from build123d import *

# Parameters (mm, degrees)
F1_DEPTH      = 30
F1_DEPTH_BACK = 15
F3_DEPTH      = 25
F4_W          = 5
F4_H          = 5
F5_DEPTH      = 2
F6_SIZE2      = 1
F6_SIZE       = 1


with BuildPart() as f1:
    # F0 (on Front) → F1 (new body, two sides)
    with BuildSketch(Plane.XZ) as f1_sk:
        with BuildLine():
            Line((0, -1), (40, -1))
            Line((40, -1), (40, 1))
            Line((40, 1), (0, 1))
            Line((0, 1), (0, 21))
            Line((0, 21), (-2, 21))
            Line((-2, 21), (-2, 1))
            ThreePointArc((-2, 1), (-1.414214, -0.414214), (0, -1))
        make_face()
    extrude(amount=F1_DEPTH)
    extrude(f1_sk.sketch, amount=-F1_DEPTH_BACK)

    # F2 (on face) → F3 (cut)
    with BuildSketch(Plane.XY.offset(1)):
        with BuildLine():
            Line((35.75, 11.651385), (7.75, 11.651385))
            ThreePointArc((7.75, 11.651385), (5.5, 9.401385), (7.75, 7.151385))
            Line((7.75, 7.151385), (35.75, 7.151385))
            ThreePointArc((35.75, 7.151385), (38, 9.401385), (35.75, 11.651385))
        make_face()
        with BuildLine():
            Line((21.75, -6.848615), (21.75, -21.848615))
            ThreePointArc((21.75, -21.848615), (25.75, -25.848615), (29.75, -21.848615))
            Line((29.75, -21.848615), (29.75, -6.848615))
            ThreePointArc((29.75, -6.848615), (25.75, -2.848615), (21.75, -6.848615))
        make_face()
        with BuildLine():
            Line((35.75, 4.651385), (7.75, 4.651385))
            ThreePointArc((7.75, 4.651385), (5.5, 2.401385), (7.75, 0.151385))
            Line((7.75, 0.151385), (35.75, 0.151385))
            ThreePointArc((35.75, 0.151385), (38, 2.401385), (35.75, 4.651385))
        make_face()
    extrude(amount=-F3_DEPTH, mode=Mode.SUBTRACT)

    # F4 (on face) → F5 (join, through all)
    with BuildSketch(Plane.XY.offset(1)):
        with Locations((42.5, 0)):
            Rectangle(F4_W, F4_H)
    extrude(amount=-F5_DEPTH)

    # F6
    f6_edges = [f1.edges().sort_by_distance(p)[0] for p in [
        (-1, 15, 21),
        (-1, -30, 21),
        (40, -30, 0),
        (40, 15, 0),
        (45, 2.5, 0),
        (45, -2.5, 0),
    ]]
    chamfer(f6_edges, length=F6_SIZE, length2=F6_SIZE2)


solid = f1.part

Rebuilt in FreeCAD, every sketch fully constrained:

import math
import FreeCAD as App
import Part
import Sketcher
from FreeCAD import Vector
Q = App.Units.Quantity


def edges_at(feature, points):
    """Names of the edges that pass closest to the given points."""
    edges = feature.Shape.Edges
    near = lambda p: min(range(len(edges)), key=lambda i: edges[i].distToShape(Part.Vertex(*p))[0])
    return sorted({f"Edge{near(p) + 1}" for p in points})


def add_polygon(sketch, points):
    """Adds a closed chain of lines whose ends are joined by coincident constraints."""
    first, n = sketch.GeometryCount, len(points)
    for a, b in zip(points, points[1:] + points[:1]):
        sketch.addGeometry(Part.LineSegment(App.Vector(*a, 0), App.Vector(*b, 0)), False)
    for i in range(n):
        sketch.addConstraint(Sketcher.Constraint("Coincident", first + i, 2, first + (i + 1) % n, 1))

doc = App.newDocument("Part")
body = doc.addObject("PartDesign::Body", "Body")

# Sketch on XZ plane
sketch1 = body.newObject("Sketcher::SketchObject", "Sketch")
sketch1.AttachmentSupport = (doc.getObject("XZ_Plane"), [""])
sketch1.MapMode = "FlatFace"
sketch1.addGeometry([
    Part.LineSegment(Vector(0, -1, 0), Vector(40, -1, 0)),  # 0
    Part.LineSegment(Vector(40, -1, 0), Vector(40, 1, 0)),  # 1
    Part.LineSegment(Vector(40, 1, 0), Vector(0, 1, 0)),  # 2
    Part.LineSegment(Vector(0, 1, 0), Vector(0, 21, 0)),  # 3
    Part.LineSegment(Vector(0, 21, 0), Vector(-2, 21, 0)),  # 4
    Part.LineSegment(Vector(-2, 21, 0), Vector(-2, 1, 0)),  # 5
    Part.ArcOfCircle(Part.Circle(Vector(0, 1, 0), Vector(0, 0, 1), 2), math.radians(180), math.radians(270)),  # 6
], False)
sketch1.addConstraint([
    Sketcher.Constraint("Coincident", 0, 2, 1, 1),
    Sketcher.Constraint("Coincident", 1, 2, 2, 1),
    Sketcher.Constraint("Coincident", 2, 2, 3, 1),
    Sketcher.Constraint("Coincident", 3, 2, 4, 1),
    Sketcher.Constraint("Coincident", 4, 2, 5, 1),
    Sketcher.Constraint("Tangent", 5, 2, 6, 1),
    Sketcher.Constraint("Tangent", 6, 2, 0, 1),
    Sketcher.Constraint("Horizontal", 0),
    Sketcher.Constraint("Vertical", 1),
    Sketcher.Constraint("Horizontal", 2),
    Sketcher.Constraint("Vertical", 3),
    Sketcher.Constraint("Horizontal", 4),
    Sketcher.Constraint("Vertical", 5),
    Sketcher.Constraint("Coincident", 2, 2, 6, 3),
    Sketcher.Constraint("Symmetric", 2, 2, 6, 2, -1, 1),
    Sketcher.Constraint("Radius", 6, Q("1.999999 mm")),
    Sketcher.Constraint("DistanceX", 0, 1, 0, 2, Q("40 mm")),
    Sketcher.Constraint("DistanceY", 3, 1, 3, 2, Q("20 mm")),
])
pad1 = body.newObject("PartDesign::Pad", "Pad")
pad1.Profile = sketch1
pad1.Type = "TwoLengths"
pad1.Length = 30
pad1.Length2 = 15

# Sketch on XY plane
sketch2 = body.newObject("Sketcher::SketchObject", "Sketch001")
sketch2.AttachmentSupport = (doc.getObject("XY_Plane"), [""])
sketch2.MapMode = "FlatFace"
sketch2.AttachmentOffset = App.Placement(Vector(0, 0, 1), App.Rotation())
sketch2.addGeometry([
    Part.LineSegment(Vector(35.8, 11.7, 0), Vector(7.8, 11.7, 0)),  # 0
    Part.ArcOfCircle(Part.Circle(Vector(7.8, 9.4, 0), Vector(0, 0, 1), 2.2), math.radians(90), math.radians(270)),  # 1
    Part.LineSegment(Vector(7.8, 7.2, 0), Vector(35.8, 7.2, 0)),  # 2
    Part.ArcOfCircle(Part.Circle(Vector(35.8, 9.4, 0), Vector(0, 0, 1), 2.2), math.radians(-90), math.radians(90)),  # 3
    Part.LineSegment(Vector(21.8, -6.8, 0), Vector(21.8, -21.8, 0)),  # 4
    Part.ArcOfCircle(Part.Circle(Vector(25.8, -21.8, 0), Vector(0, 0, 1), 4), math.radians(180), math.radians(360)),  # 5
    Part.LineSegment(Vector(29.8, -21.8, 0), Vector(29.8, -6.8, 0)),  # 6
    Part.ArcOfCircle(Part.Circle(Vector(25.8, -6.8, 0), Vector(0, 0, 1), 4), math.radians(0), math.radians(180)),  # 7
    Part.LineSegment(Vector(35.8, 4.7, 0), Vector(7.8, 4.7, 0)),  # 8
    Part.ArcOfCircle(Part.Circle(Vector(7.8, 2.4, 0), Vector(0, 0, 1), 2.2), math.radians(90), math.radians(270)),  # 9
    Part.LineSegment(Vector(7.8, 0.2, 0), Vector(35.8, 0.2, 0)),  # 10
    Part.ArcOfCircle(Part.Circle(Vector(35.8, 2.4, 0), Vector(0, 0, 1), 2.2), math.radians(-90), math.radians(90)),  # 11
], False)
sketch2.addConstraint([
    Sketcher.Constraint("Tangent", 0, 2, 1, 1),
    Sketcher.Constraint("Tangent", 1, 2, 2, 1),
    Sketcher.Constraint("Tangent", 2, 2, 3, 1),
    Sketcher.Constraint("Tangent", 3, 2, 0, 1),
    Sketcher.Constraint("Tangent", 4, 2, 5, 1),
    Sketcher.Constraint("Tangent", 5, 2, 6, 1),
    Sketcher.Constraint("Tangent", 6, 2, 7, 1),
    Sketcher.Constraint("Tangent", 7, 2, 4, 1),
    Sketcher.Constraint("Tangent", 8, 2, 9, 1),
    Sketcher.Constraint("Tangent", 9, 2, 10, 1),
    Sketcher.Constraint("Tangent", 10, 2, 11, 1),
    Sketcher.Constraint("Tangent", 11, 2, 8, 1),
    Sketcher.Constraint("Horizontal", 0),
    Sketcher.Constraint("Horizontal", 2),
    Sketcher.Constraint("Vertical", 4),
    Sketcher.Constraint("Vertical", 6),
    Sketcher.Constraint("Horizontal", 8),
    Sketcher.Constraint("Horizontal", 10),
    Sketcher.Constraint("Equal", 3, 9),
    Sketcher.Constraint("Vertical", 1, 3, 9, 3),
    Sketcher.Constraint("Vertical", 3, 3, 11, 3),
    Sketcher.Constraint("Radius", 5, Q("4 mm")),
    Sketcher.Constraint("DistanceX", 0, 2, 0, 1, Q("28 mm")),
    Sketcher.Constraint("DistanceY", 4, 2, 4, 1, Q("15 mm")),
    Sketcher.Constraint("Radius", 1, Q("2.25 mm")),
    Sketcher.Constraint("DistanceX", 5, 3, 3, 3, Q("10 mm")),
    Sketcher.Constraint("DistanceY", 9, 3, 1, 3, Q("7 mm")),
    Sketcher.Constraint("DistanceY", 7, 3, 1, 2, Q("14 mm")),
    Sketcher.Constraint("DistanceX", -1, 1, 1, 3, Q("7.75 mm")),
    Sketcher.Constraint("DistanceY", -1, 1, 1, 3, Q("9.401385 mm")),
])
pocket1 = body.newObject("PartDesign::Pocket", "Pocket")
pocket1.Profile = sketch2
pocket1.Length = 25

# Sketch on XY plane
sketch3 = body.newObject("Sketcher::SketchObject", "Sketch002")
sketch3.AttachmentSupport = (doc.getObject("XY_Plane"), [""])
sketch3.MapMode = "FlatFace"
sketch3.AttachmentOffset = App.Placement(Vector(0, 0, 1), App.Rotation())
add_polygon(sketch3, [(40, 2), (40, -2), (45, -2), (45, 2)])  # lines 0-3
sketch3.addConstraint([
    Sketcher.Constraint("Vertical", 0),
    Sketcher.Constraint("Horizontal", 1),
    Sketcher.Constraint("Vertical", 2),
    Sketcher.Constraint("Horizontal", 3),
    Sketcher.Constraint("Equal", 3, 0),
    Sketcher.Constraint("DistanceX", 1, 1, 1, 2, Q("5 mm")),
    Sketcher.Constraint("DistanceX", -1, 1, 0, 2, Q("40 mm")),
    Sketcher.Constraint("DistanceY", 0, 2, -1, 1, Q("2.5 mm")),
])
pad2 = body.newObject("PartDesign::Pad", "Pad001")
pad2.Profile = sketch3
pad2.Length = 2
pad2.Reversed = True
doc.recompute()

chamfer = body.newObject("PartDesign::Chamfer", "Chamfer")
chamfer.Base = (pad2, edges_at(pad2, [
    (-1, 15, 21),
    (-1, -30, 21),
    (40, -30, 0),
    (40, 15, 0),
    (45, 2.5, 0),
    (45, -2.5, 0),
]))
chamfer.ChamferType = "Two distances"
chamfer.Size = 1
chamfer.Size2 = 1

doc.recompute()
